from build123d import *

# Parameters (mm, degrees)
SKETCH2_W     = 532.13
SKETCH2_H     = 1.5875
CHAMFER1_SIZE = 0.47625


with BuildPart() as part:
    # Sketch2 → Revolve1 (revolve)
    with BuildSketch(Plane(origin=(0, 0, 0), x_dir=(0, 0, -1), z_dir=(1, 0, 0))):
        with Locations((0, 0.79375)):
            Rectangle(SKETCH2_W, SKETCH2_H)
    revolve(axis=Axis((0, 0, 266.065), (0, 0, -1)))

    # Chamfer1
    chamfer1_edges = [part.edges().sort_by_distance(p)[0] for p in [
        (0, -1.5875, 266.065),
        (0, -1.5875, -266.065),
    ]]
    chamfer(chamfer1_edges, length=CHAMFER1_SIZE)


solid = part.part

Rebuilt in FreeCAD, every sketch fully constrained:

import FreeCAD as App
import Part
import Sketcher
from FreeCAD import Vector
Q = App.Units.Quantity


def edges_at(feature, points):
    """Names of the edges that pass closest to the given points."""
    edges = feature.Shape.Edges
    near = lambda p: min(range(len(edges)), key=lambda i: edges[i].distToShape(Part.Vertex(*p))[0])
    return sorted({f"Edge{near(p) + 1}" for p in points})

doc = App.newDocument("Part")
params = doc.addObject("Spreadsheet::Sheet", "Params")
for row, (alias, value) in enumerate([
    ("sketch1_height", "20.95 in"),
    ("sketch1_width", "0.0625 in"),
    ("revolution_angle", "360 deg"),
    ("chamfer_size", "0.47625 mm"),
], start=1):
    params.set(f"A{row}", alias)
    params.set(f"B{row}", "=" + value)
    params.setAlias(f"B{row}", alias)

body = doc.addObject("PartDesign::Body", "Body")

sketch1 = body.newObject("Sketcher::SketchObject", "Sketch")
sketch1.AttachmentSupport = (doc.getObject("YZ_Plane"), [""])
sketch1.MapMode = "FlatFace"
sketch1.addGeometry(Part.LineSegment(Vector(1.5875, 266.065, 0), Vector(0, 266.065, 0)), False)
sketch1.addGeometry(Part.LineSegment(Vector(0, 266.065, 0), Vector(0, -266.065, 0)), False)
sketch1.addGeometry(Part.LineSegment(Vector(0, -266.065, 0), Vector(1.5875, -266.065, 0)), False)
sketch1.addGeometry(Part.LineSegment(Vector(1.5875, -266.065, 0), Vector(1.5875, 266.065, 0)), False)
sketch1.addConstraint(Sketcher.Constraint("Coincident", 0, 2, 1, 1))
sketch1.addConstraint(Sketcher.Constraint("Coincident", 1, 2, 2, 1))
sketch1.addConstraint(Sketcher.Constraint("Coincident", 2, 2, 3, 1))
sketch1.addConstraint(Sketcher.Constraint("Coincident", 3, 2, 0, 1))
sketch1.addConstraint(Sketcher.Constraint("Horizontal", 0))
sketch1.addConstraint(Sketcher.Constraint("Vertical", 1))
sketch1.addConstraint(Sketcher.Constraint("Horizontal", 2))
sketch1.addConstraint(Sketcher.Constraint("Vertical", 3))
sketch1.addConstraint(Sketcher.Constraint("Symmetric", 0, 2, 1, 2, -1, 1))
sketch1.addConstraint(Sketcher.Constraint("DistanceY", 1, 2, 1, 1, Q("20.95 in")))
sketch1.addConstraint(Sketcher.Constraint("DistanceX", 0, 2, 0, 1, Q("0.0625 in")))
sketch1.setExpression("Constraints[9]", "Params.sketch1_height")
sketch1.setExpression("Constraints[10]", "Params.sketch1_width")
revolution = body.newObject("PartDesign::Revolution", "Revolution")
revolution.Profile = sketch1
revolution.ReferenceAxis = (sketch1, ["V_Axis"])
revolution.setExpression("Angle", "Params.revolution_angle")
doc.recompute()

chamfer = body.newObject("PartDesign::Chamfer", "Chamfer")
chamfer.Base = (revolution, edges_at(revolution, [(0, -1.587, 266.065), (0, -1.587, -266.065)]))
chamfer.setExpression("Size", "Params.chamfer_size")

doc.recompute()
